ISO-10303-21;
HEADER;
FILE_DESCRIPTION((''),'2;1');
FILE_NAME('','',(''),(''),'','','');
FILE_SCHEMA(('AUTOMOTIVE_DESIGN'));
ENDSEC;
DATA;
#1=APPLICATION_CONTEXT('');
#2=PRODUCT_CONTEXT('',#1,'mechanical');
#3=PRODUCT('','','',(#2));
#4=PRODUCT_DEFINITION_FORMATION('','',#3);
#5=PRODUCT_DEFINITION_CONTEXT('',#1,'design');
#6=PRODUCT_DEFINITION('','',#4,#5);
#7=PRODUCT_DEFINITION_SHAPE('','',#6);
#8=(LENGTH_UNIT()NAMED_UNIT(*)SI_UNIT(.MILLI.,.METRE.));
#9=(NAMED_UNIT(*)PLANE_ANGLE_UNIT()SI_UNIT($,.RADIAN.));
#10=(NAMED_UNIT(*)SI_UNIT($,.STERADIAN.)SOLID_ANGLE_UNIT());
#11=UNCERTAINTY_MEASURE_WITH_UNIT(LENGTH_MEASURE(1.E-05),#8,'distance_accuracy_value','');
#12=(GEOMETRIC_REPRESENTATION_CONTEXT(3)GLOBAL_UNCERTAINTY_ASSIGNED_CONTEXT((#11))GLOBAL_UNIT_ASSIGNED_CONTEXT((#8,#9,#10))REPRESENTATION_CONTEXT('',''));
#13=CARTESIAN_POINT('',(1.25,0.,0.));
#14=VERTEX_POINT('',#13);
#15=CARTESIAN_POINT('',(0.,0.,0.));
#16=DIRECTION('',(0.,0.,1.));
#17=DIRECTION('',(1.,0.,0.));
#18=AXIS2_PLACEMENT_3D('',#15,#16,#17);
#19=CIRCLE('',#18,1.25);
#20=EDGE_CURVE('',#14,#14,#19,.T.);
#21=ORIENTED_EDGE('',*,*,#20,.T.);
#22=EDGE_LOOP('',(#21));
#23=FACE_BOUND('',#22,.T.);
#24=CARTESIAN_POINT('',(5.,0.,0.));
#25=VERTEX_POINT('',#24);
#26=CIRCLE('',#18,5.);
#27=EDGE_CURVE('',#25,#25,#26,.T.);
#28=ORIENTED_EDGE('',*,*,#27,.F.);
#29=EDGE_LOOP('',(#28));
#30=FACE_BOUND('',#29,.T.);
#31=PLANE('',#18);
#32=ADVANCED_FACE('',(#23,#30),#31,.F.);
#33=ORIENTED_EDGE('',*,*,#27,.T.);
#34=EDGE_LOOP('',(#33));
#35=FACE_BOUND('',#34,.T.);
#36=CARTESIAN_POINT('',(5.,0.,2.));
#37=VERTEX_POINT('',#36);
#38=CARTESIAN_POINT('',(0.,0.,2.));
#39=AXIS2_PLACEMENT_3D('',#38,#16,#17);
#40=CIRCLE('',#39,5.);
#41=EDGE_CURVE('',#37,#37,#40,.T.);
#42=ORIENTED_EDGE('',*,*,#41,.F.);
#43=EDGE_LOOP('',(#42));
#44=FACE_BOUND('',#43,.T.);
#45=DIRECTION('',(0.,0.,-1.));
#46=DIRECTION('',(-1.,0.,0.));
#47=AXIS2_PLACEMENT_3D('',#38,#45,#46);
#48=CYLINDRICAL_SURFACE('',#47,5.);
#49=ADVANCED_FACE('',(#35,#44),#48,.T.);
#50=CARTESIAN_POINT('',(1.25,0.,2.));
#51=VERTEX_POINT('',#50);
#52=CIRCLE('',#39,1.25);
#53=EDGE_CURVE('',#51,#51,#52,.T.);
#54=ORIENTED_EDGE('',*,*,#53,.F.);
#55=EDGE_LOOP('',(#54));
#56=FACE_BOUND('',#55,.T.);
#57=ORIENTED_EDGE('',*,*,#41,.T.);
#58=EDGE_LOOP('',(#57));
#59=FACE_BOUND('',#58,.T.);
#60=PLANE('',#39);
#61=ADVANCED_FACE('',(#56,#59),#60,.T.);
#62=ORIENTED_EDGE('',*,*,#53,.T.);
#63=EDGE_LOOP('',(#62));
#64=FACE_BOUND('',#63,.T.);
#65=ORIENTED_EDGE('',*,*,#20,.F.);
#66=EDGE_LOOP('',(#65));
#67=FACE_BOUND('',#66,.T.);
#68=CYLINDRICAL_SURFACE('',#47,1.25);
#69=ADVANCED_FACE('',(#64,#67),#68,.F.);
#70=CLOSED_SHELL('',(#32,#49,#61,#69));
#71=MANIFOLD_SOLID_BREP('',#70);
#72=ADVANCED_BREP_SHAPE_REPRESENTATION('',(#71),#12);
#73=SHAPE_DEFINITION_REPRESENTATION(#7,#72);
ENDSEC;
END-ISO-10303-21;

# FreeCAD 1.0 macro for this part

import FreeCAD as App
import Part
import Sketcher

V = App.Vector
Q = App.Units.Quantity

doc = App.newDocument("Part")
body = doc.addObject("PartDesign::Body", "Body")

# Sketch on XY plane
sketch1 = doc.addObject("Sketcher::SketchObject", "Sketch")
body.addObject(sketch1)
sketch1.AttachmentSupport = (doc.XY_Plane, [""])
sketch1.MapMode = "FlatFace"
sketch1.addGeometry(Part.Circle(V(0, 0, 0), V(0, 0, 1), 5), False)
sketch1.addGeometry(Part.Circle(V(0, 0, 0), V(0, 0, 1), 1.2), False)
sketch1.addConstraint(Sketcher.Constraint("Coincident", 0, 3, -1, 1))
sketch1.addConstraint(Sketcher.Constraint("Coincident", 1, 3, -1, 1))
sketch1.addConstraint(Sketcher.Constraint("Diameter", 0, Q("10 mm")))
sketch1.addConstraint(Sketcher.Constraint("Diameter", 1, Q("2.5 mm")))
pad1 = doc.addObject("PartDesign::Pad", "Pad")
body.addObject(pad1)
pad1.Profile = sketch1
pad1.Length = 2

doc.recompute()
